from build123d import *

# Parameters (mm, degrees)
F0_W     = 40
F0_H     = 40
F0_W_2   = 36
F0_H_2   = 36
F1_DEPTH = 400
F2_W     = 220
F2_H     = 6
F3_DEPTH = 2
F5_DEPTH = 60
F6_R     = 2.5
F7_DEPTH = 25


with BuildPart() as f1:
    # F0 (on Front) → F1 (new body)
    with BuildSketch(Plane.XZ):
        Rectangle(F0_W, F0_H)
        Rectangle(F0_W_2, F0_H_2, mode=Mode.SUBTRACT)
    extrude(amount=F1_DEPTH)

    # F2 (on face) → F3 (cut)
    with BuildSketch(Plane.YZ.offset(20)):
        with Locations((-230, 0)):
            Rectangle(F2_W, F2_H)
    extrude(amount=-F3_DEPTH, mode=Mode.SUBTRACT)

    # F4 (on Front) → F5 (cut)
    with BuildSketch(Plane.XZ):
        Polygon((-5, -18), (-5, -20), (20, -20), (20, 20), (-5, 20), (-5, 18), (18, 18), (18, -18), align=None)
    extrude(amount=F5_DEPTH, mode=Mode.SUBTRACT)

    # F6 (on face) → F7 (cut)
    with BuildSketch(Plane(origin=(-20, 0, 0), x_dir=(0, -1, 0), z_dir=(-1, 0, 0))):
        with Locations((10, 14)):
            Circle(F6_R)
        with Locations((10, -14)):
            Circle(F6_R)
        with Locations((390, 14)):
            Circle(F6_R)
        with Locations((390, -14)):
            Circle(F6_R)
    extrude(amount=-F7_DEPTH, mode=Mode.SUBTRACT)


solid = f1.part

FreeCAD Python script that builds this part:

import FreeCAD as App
import Part
import Sketcher
Q = App.Units.Quantity


def add_polygon(sketch, points):
    """Adds a closed chain of lines whose ends are joined by coincident constraints."""
    first, n = sketch.GeometryCount, len(points)
    for a, b in zip(points, points[1:] + points[:1]):
        sketch.addGeometry(Part.LineSegment(App.Vector(*a, 0), App.Vector(*b, 0)), False)
    for i in range(n):
        sketch.addConstraint(Sketcher.Constraint("Coincident", first + i, 2, first + (i + 1) % n, 1))

doc = App.newDocument("Part")
body = doc.addObject("PartDesign::Body", "Body")

# Sketch on XZ plane
sketch1 = body.newObject("Sketcher::SketchObject", "Sketch")
sketch1.AttachmentSupport = (doc.getObject("XZ_Plane"), [""])
sketch1.MapMode = "FlatFace"
add_polygon(sketch1, [(-20, 20), (-20, -20), (20, -20), (20, 20)])  # lines 0-3
add_polygon(sketch1, [(18, -18), (-18, -18), (-18, 18), (18, 18)])  # lines 4-7
sketch1.addConstraint(Sketcher.Constraint("Vertical", 0))
sketch1.addConstraint(Sketcher.Constraint("Horizontal", 1))
sketch1.addConstraint(Sketcher.Constraint("Vertical", 2))
sketch1.addConstraint(Sketcher.Constraint("Horizontal", 3))
sketch1.addConstraint(Sketcher.Constraint("Horizontal", 4))
sketch1.addConstraint(Sketcher.Constraint("Vertical", 5))
sketch1.addConstraint(Sketcher.Constraint("Horizontal", 6))
sketch1.addConstraint(Sketcher.Constraint("Vertical", 7))
sketch1.addConstraint(Sketcher.Constraint("Symmetric", 0, 2, 2, 2, -1, 1))
sketch1.addConstraint(Sketcher.Constraint("Symmetric", 4, 2, 6, 2, -1, 1))
sketch1.addConstraint(Sketcher.Constraint("Equal", 3, 0))
sketch1.addConstraint(Sketcher.Constraint("Equal", 6, 5))
sketch1.addConstraint(Sketcher.Constraint("DistanceX", 1, 1, 1, 2, Q("40 mm")))
sketch1.addConstraint(Sketcher.Constraint("DistanceX", 4, 2, 4, 1, Q("36 mm")))
pad1 = body.newObject("PartDesign::Pad", "Pad")
pad1.Profile = sketch1
pad1.Length = 400

# Sketch on YZ plane
sketch2 = body.newObject("Sketcher::SketchObject", "Sketch001")
sketch2.AttachmentSupport = (doc.getObject("YZ_Plane"), [""])
sketch2.MapMode = "FlatFace"
sketch2.AttachmentOffset = App.Placement(App.Vector(0, 0, 20), App.Rotation())
add_polygon(sketch2, [(-340, 3), (-340, -3), (-120, -3), (-120, 3)])  # lines 0-3
sketch2.addConstraint(Sketcher.Constraint("Vertical", 0))
sketch2.addConstraint(Sketcher.Constraint("Horizontal", 1))
sketch2.addConstraint(Sketcher.Constraint("Vertical", 2))
sketch2.addConstraint(Sketcher.Constraint("Horizontal", 3))
sketch2.addConstraint(Sketcher.Constraint("DistanceX", 1, 1, 1, 2, Q("220 mm")))
sketch2.addConstraint(Sketcher.Constraint("DistanceY", 0, 2, 0, 1, Q("6 mm")))
sketch2.addConstraint(Sketcher.Constraint("DistanceX", 0, 2, -1, 1, Q("340 mm")))
sketch2.addConstraint(Sketcher.Constraint("DistanceY", 0, 2, -1, 1, Q("3 mm")))
pocket1 = body.newObject("PartDesign::Pocket", "Pocket")
pocket1.Profile = sketch2
pocket1.Length = 2

# Sketch on XZ plane
sketch3 = body.newObject("Sketcher::SketchObject", "Sketch002")
sketch3.AttachmentSupport = (doc.getObject("XZ_Plane"), [""])
sketch3.MapMode = "FlatFace"
add_polygon(sketch3, [(-5, -18), (-5, -20), (20, -20), (20, 20), (-5, 20), (-5, 18), (18, 18), (18, -18)])  # lines 0-7
sketch3.addConstraint(Sketcher.Constraint("Vertical", 0))
sketch3.addConstraint(Sketcher.Constraint("Horizontal", 1))
sketch3.addConstraint(Sketcher.Constraint("Vertical", 2))
sketch3.addConstraint(Sketcher.Constraint("Horizontal", 3))
sketch3.addConstraint(Sketcher.Constraint("Vertical", 4))
sketch3.addConstraint(Sketcher.Constraint("Horizontal", 5))
sketch3.addConstraint(Sketcher.Constraint("Vertical", 6))
sketch3.addConstraint(Sketcher.Constraint("Horizontal", 7))
sketch3.addConstraint(Sketcher.Constraint("Symmetric", 0, 2, 3, 2, -1))
sketch3.addConstraint(Sketcher.Constraint("Equal", 0, 4))
sketch3.addConstraint(Sketcher.Constraint("DistanceX", 1, 1, 1, 2, Q("25 mm")))
sketch3.addConstraint(Sketcher.Constraint("DistanceX", 5, 1, 5, 2, Q("23 mm")))
sketch3.addConstraint(Sketcher.Constraint("DistanceY", 0, 2, 0, 1, Q("2 mm")))
sketch3.addConstraint(Sketcher.Constraint("DistanceY", 2, 1, 2, 2, Q("40 mm")))
sketch3.addConstraint(Sketcher.Constraint("DistanceX", 0, 2, -1, 1, Q("5 mm")))
pocket2 = body.newObject("PartDesign::Pocket", "Pocket001")
pocket2.Profile = sketch3
pocket2.Length = 60
pocket2.Reversed = True

# Sketch on YZ plane
sketch4 = body.newObject("Sketcher::SketchObject", "Sketch003")
sketch4.AttachmentSupport = (doc.getObject("YZ_Plane"), [""])
sketch4.MapMode = "FlatFace"
sketch4.AttachmentOffset = App.Placement(App.Vector(0, 0, -20), App.Rotation())
sketch4.addGeometry(Part.Circle(App.Vector(-10, 14, 0), App.Vector(0, 0, 1), 2.5), False)
sketch4.addGeometry(Part.Circle(App.Vector(-10, -14, 0), App.Vector(0, 0, 1), 2.5), False)
sketch4.addGeometry(Part.Circle(App.Vector(-390, 14, 0), App.Vector(0, 0, 1), 2.5), False)
sketch4.addGeometry(Part.Circle(App.Vector(-390, -14, 0), App.Vector(0, 0, 1), 2.5), False)
sketch4.addConstraint(Sketcher.Constraint("Equal", 0, 1))
sketch4.addConstraint(Sketcher.Constraint("Equal", 1, 2))
sketch4.addConstraint(Sketcher.Constraint("Equal", 2, 3))
sketch4.addConstraint(Sketcher.Constraint("Symmetric", 0, 3, 1, 3, -1))
sketch4.addConstraint(Sketcher.Constraint("Symmetric", 2, 3, 3, 3, -1))
sketch4.addConstraint(Sketcher.Constraint("Horizontal", 0, 3, 2, 3))
sketch4.addConstraint(Sketcher.Constraint("Diameter", 0, Q("5 mm")))
sketch4.addConstraint(Sketcher.Constraint("DistanceX", 0, 3, -1, 1, Q("10 mm")))
sketch4.addConstraint(Sketcher.Constraint("DistanceY", -1, 1, 0, 3, Q("14 mm")))
sketch4.addConstraint(Sketcher.Constraint("DistanceX", 2, 3, -1, 1, Q("390 mm")))
pocket3 = body.newObject("PartDesign::Pocket", "Pocket002")
pocket3.Profile = sketch4
pocket3.Length = 25
pocket3.Reversed = True

doc.recompute()
